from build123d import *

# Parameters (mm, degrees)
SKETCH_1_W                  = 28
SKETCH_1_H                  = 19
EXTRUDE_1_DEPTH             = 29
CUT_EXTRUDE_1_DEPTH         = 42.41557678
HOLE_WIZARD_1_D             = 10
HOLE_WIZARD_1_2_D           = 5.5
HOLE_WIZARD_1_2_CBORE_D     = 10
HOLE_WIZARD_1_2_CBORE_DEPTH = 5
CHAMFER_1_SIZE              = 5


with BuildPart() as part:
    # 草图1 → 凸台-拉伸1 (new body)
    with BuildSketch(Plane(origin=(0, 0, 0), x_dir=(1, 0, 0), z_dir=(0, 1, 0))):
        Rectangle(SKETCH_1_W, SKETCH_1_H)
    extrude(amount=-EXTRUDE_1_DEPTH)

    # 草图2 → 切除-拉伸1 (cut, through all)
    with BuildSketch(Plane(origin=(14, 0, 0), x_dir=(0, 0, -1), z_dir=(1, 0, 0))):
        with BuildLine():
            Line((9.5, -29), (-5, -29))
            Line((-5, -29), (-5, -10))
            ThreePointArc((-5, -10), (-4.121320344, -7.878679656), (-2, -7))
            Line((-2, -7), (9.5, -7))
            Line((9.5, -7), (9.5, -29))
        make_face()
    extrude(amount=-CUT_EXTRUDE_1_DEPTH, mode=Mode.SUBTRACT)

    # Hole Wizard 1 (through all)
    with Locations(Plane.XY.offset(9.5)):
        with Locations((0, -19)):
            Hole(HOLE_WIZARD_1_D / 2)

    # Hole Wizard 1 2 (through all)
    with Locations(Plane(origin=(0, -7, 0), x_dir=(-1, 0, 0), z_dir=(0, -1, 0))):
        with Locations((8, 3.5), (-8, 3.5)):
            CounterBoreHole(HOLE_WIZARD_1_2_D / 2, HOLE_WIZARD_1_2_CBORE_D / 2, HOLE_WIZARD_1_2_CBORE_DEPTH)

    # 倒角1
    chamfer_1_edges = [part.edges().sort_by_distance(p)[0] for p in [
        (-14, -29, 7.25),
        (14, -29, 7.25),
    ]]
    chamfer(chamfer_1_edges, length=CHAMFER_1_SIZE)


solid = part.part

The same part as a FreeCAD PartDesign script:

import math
import FreeCAD as App
import Part
import Sketcher

V = App.Vector


def edges_at(feature, points):
    """Names of the edges that pass closest to the given points."""
    edges = feature.Shape.Edges
    near = lambda p: min(range(len(edges)), key=lambda i: edges[i].distToShape(Part.Vertex(*p))[0])
    return sorted({f"Edge{near(p) + 1}" for p in points})

doc = App.newDocument("Part")
body = doc.addObject("PartDesign::Body", "Body")

sketch1 = body.newObject("Sketcher::SketchObject", "Sketch")
sketch1.AttachmentSupport = (doc.getObject("XZ_Plane"), [""])
sketch1.MapMode = "FlatFace"
sketch1.addGeometry(Part.LineSegment(V(-14, -10, 0), V(-14, 10, 0)), False)
sketch1.addGeometry(Part.LineSegment(V(-14, 10, 0), V(14, 10, 0)), False)
sketch1.addGeometry(Part.LineSegment(V(14, 10, 0), V(14, -10, 0)), False)
sketch1.addGeometry(Part.LineSegment(V(14, -10, 0), V(-14, -10, 0)), False)
sketch1.addConstraint(Sketcher.Constraint("Coincident", 0, 2, 1, 1))
sketch1.addConstraint(Sketcher.Constraint("Coincident", 1, 2, 2, 1))
sketch1.addConstraint(Sketcher.Constraint("Coincident", 2, 2, 3, 1))
sketch1.addConstraint(Sketcher.Constraint("Coincident", 3, 2, 0, 1))
sketch1.addConstraint(Sketcher.Constraint("Vertical", 0))
sketch1.addConstraint(Sketcher.Constraint("Horizontal", 1))
sketch1.addConstraint(Sketcher.Constraint("Vertical", 2))
sketch1.addConstraint(Sketcher.Constraint("Horizontal", 3))
sketch1.addConstraint(Sketcher.Constraint("Symmetric", 0, 2, 2, 2, -1, 1))
sketch1.addConstraint(Sketcher.Constraint("DistanceX", 1, 1, 1, 2, 28.0))
sketch1.addConstraint(Sketcher.Constraint("DistanceY", 0, 1, 0, 2, 19.0))
pad1 = body.newObject("PartDesign::Pad", "Pad")
pad1.Profile = sketch1
pad1.Length = 29

sketch2 = body.newObject("Sketcher::SketchObject", "Sketch001")
sketch2.AttachmentSupport = (doc.getObject("YZ_Plane"), [""])
sketch2.MapMode = "FlatFace"
sketch2.AttachmentOffset = App.Placement(V(0, 0, 14), App.Rotation())
sketch2.addGeometry(Part.LineSegment(V(-29, 5, 0), V(-29, -9.5, 0)), False)
sketch2.addGeometry(Part.LineSegment(V(-29, -9.5, 0), V(-7, -9.5, 0)), False)
sketch2.addGeometry(Part.LineSegment(V(-7, -9.5, 0), V(-7, 2, 0)), False)
sketch2.addGeometry(Part.ArcOfCircle(Part.Circle(V(-10, 2, 0), V(0, 0, 1), 3), math.radians(0), math.radians(90)), False)
sketch2.addGeometry(Part.LineSegment(V(-10, 5, 0), V(-29, 5, 0)), False)
sketch2.addConstraint(Sketcher.Constraint("Coincident", 0, 2, 1, 1))
sketch2.addConstraint(Sketcher.Constraint("Coincident", 1, 2, 2, 1))
sketch2.addConstraint(Sketcher.Constraint("Tangent", 2, 2, 3, 1))
sketch2.addConstraint(Sketcher.Constraint("Tangent", 3, 2, 4, 1))
sketch2.addConstraint(Sketcher.Constraint("Coincident", 4, 2, 0, 1))
sketch2.addConstraint(Sketcher.Constraint("Vertical", 0))
sketch2.addConstraint(Sketcher.Constraint("Horizontal", 1))
sketch2.addConstraint(Sketcher.Constraint("Vertical", 2))
sketch2.addConstraint(Sketcher.Constraint("Horizontal", 4))
sketch2.addConstraint(Sketcher.Constraint("Radius", 3, 3.0))
sketch2.addConstraint(Sketcher.Constraint("DistanceX", 1, 1, 1, 2, 22.0))
sketch2.addConstraint(Sketcher.Constraint("DistanceY", 0, 2, 0, 1, 14.5))
sketch2.addConstraint(Sketcher.Constraint("DistanceX", 3, 3, -1, 1, 10.0))
sketch2.addConstraint(Sketcher.Constraint("DistanceY", -1, 1, 3, 3, 2.0))
pocket1 = body.newObject("PartDesign::Pocket", "Pocket")
pocket1.Profile = sketch2
pocket1.Type = "ThroughAll"

sketch3 = body.newObject("Sketcher::SketchObject", "Sketch002")
sketch3.AttachmentSupport = (doc.getObject("XY_Plane"), [""])
sketch3.MapMode = "FlatFace"
sketch3.AttachmentOffset = App.Placement(V(0, 0, 9.5), App.Rotation())
sketch3.addGeometry(Part.Circle(V(0, -19, 0), V(0, 0, 1), 5), False)
sketch3.addConstraint(Sketcher.Constraint("PointOnObject", 0, 3, -2))
sketch3.addConstraint(Sketcher.Constraint("Diameter", 0, 10.0))
sketch3.addConstraint(Sketcher.Constraint("DistanceY", 0, 3, -1, 1, 19.0))
doc.recompute()
hole = body.newObject("PartDesign::Hole", "Hole")
hole.Profile = sketch3
hole.ThreadType = "None"
hole.Diameter = 10
hole.DepthType = "ThroughAll"

sketch4 = body.newObject("Sketcher::SketchObject", "Sketch003")
sketch4.AttachmentSupport = (doc.getObject("XZ_Plane"), [""])
sketch4.MapMode = "FlatFace"
sketch4.AttachmentOffset = App.Placement(V(0, 0, 7), App.Rotation())
sketch4.addGeometry(Part.Circle(V(-8, -3.5, 0), V(0, 0, 1), 2.8), False)
sketch4.addGeometry(Part.Circle(V(8, -3.5, 0), V(0, 0, 1), 2.8), False)
sketch4.addConstraint(Sketcher.Constraint("Equal", 0, 1))
sketch4.addConstraint(Sketcher.Constraint("Symmetric", 0, 3, 1, 3, -2))
sketch4.addConstraint(Sketcher.Constraint("Diameter", 0, 5.5))
sketch4.addConstraint(Sketcher.Constraint("DistanceX", 0, 3, -1, 1, 8.0))
sketch4.addConstraint(Sketcher.Constraint("DistanceY", 0, 3, -1, 1, 3.5))
doc.recompute()
hole2 = body.newObject("PartDesign::Hole", "Hole001")
hole2.Profile = sketch4
hole2.ThreadType = "None"
hole2.Diameter = 5.5
hole2.DepthType = "ThroughAll"
hole2.HoleCutType = "Counterbore"
hole2.HoleCutDiameter = 10
hole2.HoleCutDepth = 5
doc.recompute()

chamfer = body.newObject("PartDesign::Chamfer", "Chamfer")
chamfer.Base = (hole2, edges_at(hole2, [(-14, -29, 7.25), (14, -29, 7.25)]))
chamfer.Size = 5

doc.recompute()
